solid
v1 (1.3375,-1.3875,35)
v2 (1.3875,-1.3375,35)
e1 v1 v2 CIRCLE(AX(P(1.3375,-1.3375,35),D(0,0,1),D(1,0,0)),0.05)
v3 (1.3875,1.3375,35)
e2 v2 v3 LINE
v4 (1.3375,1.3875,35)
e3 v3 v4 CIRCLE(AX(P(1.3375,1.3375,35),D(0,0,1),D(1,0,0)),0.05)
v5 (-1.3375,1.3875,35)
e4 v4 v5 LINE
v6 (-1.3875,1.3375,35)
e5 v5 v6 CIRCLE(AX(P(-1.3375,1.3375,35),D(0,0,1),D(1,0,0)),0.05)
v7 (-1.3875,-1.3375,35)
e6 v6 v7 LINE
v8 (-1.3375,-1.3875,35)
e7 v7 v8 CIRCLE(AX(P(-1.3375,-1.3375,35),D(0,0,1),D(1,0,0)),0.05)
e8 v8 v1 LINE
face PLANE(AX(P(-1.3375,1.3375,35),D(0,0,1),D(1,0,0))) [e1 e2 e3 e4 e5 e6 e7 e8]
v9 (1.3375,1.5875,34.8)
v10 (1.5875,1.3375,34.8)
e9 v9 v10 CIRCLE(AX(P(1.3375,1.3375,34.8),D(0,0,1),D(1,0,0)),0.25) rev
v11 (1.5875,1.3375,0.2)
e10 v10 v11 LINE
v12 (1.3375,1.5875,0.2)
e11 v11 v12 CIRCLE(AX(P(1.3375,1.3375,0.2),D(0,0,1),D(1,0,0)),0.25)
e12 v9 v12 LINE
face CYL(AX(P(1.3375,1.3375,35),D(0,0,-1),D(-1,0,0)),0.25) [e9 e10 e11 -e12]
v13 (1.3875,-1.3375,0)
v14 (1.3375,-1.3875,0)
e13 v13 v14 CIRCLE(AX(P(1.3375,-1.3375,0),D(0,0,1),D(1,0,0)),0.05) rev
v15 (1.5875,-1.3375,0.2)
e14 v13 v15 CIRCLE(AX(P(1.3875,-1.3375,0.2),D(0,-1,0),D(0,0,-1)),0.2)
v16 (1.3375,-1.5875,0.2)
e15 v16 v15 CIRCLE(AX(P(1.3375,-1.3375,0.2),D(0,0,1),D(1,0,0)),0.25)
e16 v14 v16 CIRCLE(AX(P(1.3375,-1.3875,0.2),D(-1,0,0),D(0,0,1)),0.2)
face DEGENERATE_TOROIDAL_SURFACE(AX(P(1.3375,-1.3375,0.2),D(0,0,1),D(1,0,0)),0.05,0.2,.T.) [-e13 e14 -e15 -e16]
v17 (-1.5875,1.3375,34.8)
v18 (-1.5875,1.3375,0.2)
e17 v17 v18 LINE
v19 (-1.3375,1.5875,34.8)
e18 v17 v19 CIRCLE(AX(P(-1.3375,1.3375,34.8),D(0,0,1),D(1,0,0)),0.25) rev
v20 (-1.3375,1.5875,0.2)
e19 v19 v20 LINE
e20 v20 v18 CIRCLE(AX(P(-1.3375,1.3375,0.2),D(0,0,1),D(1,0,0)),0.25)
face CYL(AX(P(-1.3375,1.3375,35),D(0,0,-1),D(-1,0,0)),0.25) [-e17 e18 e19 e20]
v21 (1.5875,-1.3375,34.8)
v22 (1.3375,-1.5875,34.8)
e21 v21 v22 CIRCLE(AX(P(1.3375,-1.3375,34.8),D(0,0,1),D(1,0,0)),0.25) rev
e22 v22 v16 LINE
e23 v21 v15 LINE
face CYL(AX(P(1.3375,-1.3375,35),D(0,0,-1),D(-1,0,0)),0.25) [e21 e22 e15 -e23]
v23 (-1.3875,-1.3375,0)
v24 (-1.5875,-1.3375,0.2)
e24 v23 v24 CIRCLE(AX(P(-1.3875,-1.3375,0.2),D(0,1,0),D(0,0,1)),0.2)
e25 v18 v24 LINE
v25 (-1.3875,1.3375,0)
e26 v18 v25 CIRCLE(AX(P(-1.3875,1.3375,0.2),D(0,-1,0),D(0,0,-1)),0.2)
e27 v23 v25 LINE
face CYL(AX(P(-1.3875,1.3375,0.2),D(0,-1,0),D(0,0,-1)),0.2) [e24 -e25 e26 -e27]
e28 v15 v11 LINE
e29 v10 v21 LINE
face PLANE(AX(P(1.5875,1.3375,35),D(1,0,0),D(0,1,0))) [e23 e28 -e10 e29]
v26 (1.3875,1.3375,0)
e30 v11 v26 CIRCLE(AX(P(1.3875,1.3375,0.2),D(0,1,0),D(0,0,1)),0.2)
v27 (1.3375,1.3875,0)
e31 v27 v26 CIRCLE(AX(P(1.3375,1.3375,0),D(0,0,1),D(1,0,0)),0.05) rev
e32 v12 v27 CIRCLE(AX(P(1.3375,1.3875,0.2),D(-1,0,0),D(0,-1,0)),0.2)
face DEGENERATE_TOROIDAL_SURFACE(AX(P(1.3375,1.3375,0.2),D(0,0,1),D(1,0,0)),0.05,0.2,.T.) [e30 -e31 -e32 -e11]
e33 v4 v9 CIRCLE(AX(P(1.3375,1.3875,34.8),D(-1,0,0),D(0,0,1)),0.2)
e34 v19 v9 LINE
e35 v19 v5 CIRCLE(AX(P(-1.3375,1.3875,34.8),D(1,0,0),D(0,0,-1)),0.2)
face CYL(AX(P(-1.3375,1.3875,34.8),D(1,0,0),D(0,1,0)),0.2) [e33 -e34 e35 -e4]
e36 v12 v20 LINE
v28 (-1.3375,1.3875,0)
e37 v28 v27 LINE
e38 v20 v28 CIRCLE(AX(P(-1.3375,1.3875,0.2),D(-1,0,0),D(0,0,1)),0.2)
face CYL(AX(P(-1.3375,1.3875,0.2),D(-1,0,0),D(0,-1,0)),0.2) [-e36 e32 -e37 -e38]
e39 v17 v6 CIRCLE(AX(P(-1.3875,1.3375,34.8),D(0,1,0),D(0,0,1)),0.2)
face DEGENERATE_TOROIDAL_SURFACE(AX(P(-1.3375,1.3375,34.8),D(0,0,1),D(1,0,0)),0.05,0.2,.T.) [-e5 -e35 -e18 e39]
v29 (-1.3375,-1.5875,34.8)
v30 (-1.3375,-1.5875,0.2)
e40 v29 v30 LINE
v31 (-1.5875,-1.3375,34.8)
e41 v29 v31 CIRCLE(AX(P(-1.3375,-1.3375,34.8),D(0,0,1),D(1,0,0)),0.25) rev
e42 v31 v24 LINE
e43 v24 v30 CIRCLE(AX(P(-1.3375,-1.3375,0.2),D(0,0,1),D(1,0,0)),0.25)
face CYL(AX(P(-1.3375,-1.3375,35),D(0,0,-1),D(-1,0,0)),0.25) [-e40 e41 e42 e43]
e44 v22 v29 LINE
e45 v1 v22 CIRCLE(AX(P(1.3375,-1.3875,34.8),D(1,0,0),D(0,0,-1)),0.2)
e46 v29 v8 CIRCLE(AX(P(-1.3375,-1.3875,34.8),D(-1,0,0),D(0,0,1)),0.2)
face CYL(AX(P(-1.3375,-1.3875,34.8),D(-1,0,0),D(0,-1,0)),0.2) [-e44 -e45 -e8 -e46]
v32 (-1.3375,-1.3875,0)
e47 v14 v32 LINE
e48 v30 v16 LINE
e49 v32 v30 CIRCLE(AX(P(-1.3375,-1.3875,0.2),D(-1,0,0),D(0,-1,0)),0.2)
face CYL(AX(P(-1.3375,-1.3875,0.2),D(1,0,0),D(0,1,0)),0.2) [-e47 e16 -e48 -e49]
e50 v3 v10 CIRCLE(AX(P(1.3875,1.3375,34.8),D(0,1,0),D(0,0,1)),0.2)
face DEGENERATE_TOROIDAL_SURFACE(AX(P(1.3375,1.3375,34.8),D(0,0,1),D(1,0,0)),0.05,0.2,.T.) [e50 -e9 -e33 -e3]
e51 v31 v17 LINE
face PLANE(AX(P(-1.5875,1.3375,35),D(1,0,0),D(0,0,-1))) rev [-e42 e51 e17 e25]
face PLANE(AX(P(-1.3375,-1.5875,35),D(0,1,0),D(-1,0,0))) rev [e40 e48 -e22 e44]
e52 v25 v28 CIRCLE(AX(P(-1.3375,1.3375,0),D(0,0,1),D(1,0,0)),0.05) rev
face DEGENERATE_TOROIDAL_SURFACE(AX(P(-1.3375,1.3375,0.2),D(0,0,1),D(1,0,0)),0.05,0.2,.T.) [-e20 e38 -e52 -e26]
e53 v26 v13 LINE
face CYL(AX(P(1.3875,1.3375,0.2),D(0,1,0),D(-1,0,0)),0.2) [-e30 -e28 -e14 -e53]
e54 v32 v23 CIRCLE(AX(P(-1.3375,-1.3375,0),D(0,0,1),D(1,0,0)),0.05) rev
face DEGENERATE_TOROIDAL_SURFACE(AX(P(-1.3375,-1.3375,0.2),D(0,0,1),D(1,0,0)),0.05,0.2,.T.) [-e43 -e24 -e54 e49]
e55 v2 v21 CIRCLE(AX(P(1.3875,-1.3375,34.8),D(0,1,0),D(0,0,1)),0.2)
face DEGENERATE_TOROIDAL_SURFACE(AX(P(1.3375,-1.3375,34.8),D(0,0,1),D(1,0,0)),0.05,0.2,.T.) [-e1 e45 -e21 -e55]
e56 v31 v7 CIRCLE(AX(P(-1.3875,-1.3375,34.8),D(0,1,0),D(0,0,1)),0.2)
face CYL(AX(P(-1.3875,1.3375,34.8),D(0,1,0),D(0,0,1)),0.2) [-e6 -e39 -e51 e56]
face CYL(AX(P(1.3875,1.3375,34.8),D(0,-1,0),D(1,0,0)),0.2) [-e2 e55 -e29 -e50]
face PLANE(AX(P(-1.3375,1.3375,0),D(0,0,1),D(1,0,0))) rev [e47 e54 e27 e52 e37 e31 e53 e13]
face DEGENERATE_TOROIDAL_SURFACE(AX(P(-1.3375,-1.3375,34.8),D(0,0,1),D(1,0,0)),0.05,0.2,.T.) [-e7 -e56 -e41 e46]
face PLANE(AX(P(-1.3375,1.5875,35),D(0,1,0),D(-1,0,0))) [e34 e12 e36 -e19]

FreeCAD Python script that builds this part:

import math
import FreeCAD as App
import Part
import Sketcher
Q = App.Units.Quantity


def edges_at(feature, points):
    """Names of the edges that pass closest to the given points."""
    edges = feature.Shape.Edges
    near = lambda p: min(range(len(edges)), key=lambda i: edges[i].distToShape(Part.Vertex(*p))[0])
    return sorted({f"Edge{near(p) + 1}" for p in points})

doc = App.newDocument("Part")
body = doc.addObject("PartDesign::Body", "Body")

# Sketch on XY plane
sketch1 = doc.addObject("Sketcher::SketchObject", "Sketch")
body.addObject(sketch1)
sketch1.AttachmentSupport = (doc.XY_Plane, [""])
sketch1.MapMode = "FlatFace"
sketch1.addGeometry([
    Part.LineSegment(App.Vector(1.34, 1.59, 0), App.Vector(-1.34, 1.59, 0)),  # 0
    Part.ArcOfCircle(Part.Circle(App.Vector(-1.34, 1.34, 0), App.Vector(0, 0, 1), 0.25), math.radians(90), math.radians(180)),  # 1
    Part.LineSegment(App.Vector(-1.59, 1.34, 0), App.Vector(-1.59, -1.34, 0)),  # 2
    Part.ArcOfCircle(Part.Circle(App.Vector(-1.34, -1.34, 0), App.Vector(0, 0, 1), 0.25), math.radians(-180), math.radians(-90)),  # 3
    Part.LineSegment(App.Vector(-1.34, -1.59, 0), App.Vector(1.34, -1.59, 0)),  # 4
    Part.ArcOfCircle(Part.Circle(App.Vector(1.34, -1.34, 0), App.Vector(0, 0, 1), 0.25), math.radians(-90), math.radians(0)),  # 5
    Part.LineSegment(App.Vector(1.59, -1.34, 0), App.Vector(1.59, 1.34, 0)),  # 6
    Part.ArcOfCircle(Part.Circle(App.Vector(1.34, 1.34, 0), App.Vector(0, 0, 1), 0.25), math.radians(0), math.radians(90)),  # 7
], False)
sketch1.addConstraint([
    Sketcher.Constraint("Tangent", 0, 2, 1, 1),
    Sketcher.Constraint("Tangent", 1, 2, 2, 1),
    Sketcher.Constraint("Tangent", 2, 2, 3, 1),
    Sketcher.Constraint("Tangent", 3, 2, 4, 1),
    Sketcher.Constraint("Tangent", 4, 2, 5, 1),
    Sketcher.Constraint("Tangent", 5, 2, 6, 1),
    Sketcher.Constraint("Tangent", 6, 2, 7, 1),
    Sketcher.Constraint("Tangent", 7, 2, 0, 1),
    Sketcher.Constraint("Horizontal", 0),
    Sketcher.Constraint("Vertical", 2),
    Sketcher.Constraint("Horizontal", 4),
    Sketcher.Constraint("Vertical", 6),
    Sketcher.Constraint("Equal", 1, 3),
    Sketcher.Constraint("Equal", 3, 5),
    Sketcher.Constraint("Equal", 5, 7),
    Sketcher.Constraint("Symmetric", 1, 3, 5, 3, -1, 1),
    Sketcher.Constraint("Equal", 4, 2),
    Sketcher.Constraint("Radius", 1, Q("0.25 mm")),
    Sketcher.Constraint("DistanceX", 0, 2, 0, 1, Q("2.675 mm")),
])
pad1 = doc.addObject("PartDesign::Pad", "Pad")
body.addObject(pad1)
pad1.Profile = sketch1
pad1.Length = 35
doc.recompute()

fillet = doc.addObject("PartDesign::Fillet", "Fillet")
body.addObject(fillet)
fillet.Base = (pad1, edges_at(pad1, [
    (-1.514, -1.514, 35),
    (-1.587, 0, 0),
    (-1.514, 1.514, 0),
    (0, -1.587, 35),
    (1.514, -1.514, 35),
    (1.587, 0, 35),
    (1.514, 1.514, 35),
    (0, 1.587, 35),
    (-1.514, 1.514, 35),
    (-1.587, 0, 35),
    (0, 1.587, 0),
    (1.514, 1.514, 0),
    (1.587, 0, 0),
    (1.514, -1.514, 0),
    (0, -1.587, 0),
    (-1.514, -1.514, 0),
]))
fillet.Radius = 0.2

doc.recompute()
